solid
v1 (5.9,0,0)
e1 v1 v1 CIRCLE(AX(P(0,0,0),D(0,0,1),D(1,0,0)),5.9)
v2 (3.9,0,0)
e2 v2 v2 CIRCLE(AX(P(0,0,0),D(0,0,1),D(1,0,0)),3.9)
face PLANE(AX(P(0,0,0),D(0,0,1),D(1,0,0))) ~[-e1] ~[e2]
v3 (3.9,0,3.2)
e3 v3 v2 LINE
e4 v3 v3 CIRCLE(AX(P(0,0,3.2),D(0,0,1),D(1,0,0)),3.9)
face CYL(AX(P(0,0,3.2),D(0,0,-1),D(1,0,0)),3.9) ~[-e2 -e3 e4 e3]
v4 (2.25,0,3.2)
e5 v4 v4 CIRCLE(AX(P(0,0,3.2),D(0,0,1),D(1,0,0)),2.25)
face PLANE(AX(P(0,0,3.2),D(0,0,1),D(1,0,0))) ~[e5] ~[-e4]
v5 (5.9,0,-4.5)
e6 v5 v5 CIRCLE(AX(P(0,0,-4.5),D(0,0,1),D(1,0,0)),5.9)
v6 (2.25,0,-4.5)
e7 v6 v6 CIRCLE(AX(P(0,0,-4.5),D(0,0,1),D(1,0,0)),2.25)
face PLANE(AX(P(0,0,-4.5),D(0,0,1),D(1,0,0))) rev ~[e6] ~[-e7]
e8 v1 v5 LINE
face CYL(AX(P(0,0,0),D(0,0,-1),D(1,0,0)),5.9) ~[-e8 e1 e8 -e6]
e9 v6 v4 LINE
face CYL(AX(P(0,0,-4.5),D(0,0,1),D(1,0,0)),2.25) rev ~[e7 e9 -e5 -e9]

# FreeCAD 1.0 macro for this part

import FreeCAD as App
import Part
import Sketcher
from FreeCAD import Vector
Q = App.Units.Quantity


def add_polygon(sketch, points):
    """Adds a closed chain of lines whose ends are joined by coincident constraints."""
    first, n = sketch.GeometryCount, len(points)
    for a, b in zip(points, points[1:] + points[:1]):
        sketch.addGeometry(Part.LineSegment(App.Vector(*a, 0), App.Vector(*b, 0)), False)
    for i in range(n):
        sketch.addConstraint(Sketcher.Constraint("Coincident", first + i, 2, first + (i + 1) % n, 1))

doc = App.newDocument("Part")
body = doc.addObject("PartDesign::Body", "Body")

sketch1 = body.newObject("Sketcher::SketchObject", "Sketch")
sketch1.AttachmentSupport = (doc.getObject("XZ_Plane"), [""])
sketch1.MapMode = "FlatFace"
add_polygon(sketch1, [(2.2, 3.2), (2.2, -4.5), (5.9, -4.5), (5.9, 0), (3.9, 0), (3.9, 3.2)])
sketch1.addConstraint(Sketcher.Constraint("Vertical", 0))
sketch1.addConstraint(Sketcher.Constraint("Horizontal", 1))
sketch1.addConstraint(Sketcher.Constraint("Vertical", 2))
sketch1.addConstraint(Sketcher.Constraint("Horizontal", 3))
sketch1.addConstraint(Sketcher.Constraint("Vertical", 4))
sketch1.addConstraint(Sketcher.Constraint("Horizontal", 5))
sketch1.addConstraint(Sketcher.Constraint("PointOnObject", 2, 2, -1))
sketch1.addConstraint(Sketcher.Constraint("DistanceX", 3, 2, 3, 1, Q("2 mm")))
sketch1.addConstraint(Sketcher.Constraint("DistanceY", 0, 2, 0, 1, Q("7.7 mm")))
sketch1.addConstraint(Sketcher.Constraint("DistanceY", 2, 1, 2, 2, Q("4.5 mm")))
sketch1.addConstraint(Sketcher.Constraint("DistanceX", 1, 1, 1, 2, Q("3.65 mm")))
sketch1.addConstraint(Sketcher.Constraint("DistanceX", -1, 1, 1, 2, Q("5.9 mm")))
revolution = body.newObject("PartDesign::Revolution", "Revolution")
revolution.Profile = sketch1
revolution.ReferenceAxis = (sketch1, ["V_Axis"])
revolution.Angle = 360

doc.recompute()
